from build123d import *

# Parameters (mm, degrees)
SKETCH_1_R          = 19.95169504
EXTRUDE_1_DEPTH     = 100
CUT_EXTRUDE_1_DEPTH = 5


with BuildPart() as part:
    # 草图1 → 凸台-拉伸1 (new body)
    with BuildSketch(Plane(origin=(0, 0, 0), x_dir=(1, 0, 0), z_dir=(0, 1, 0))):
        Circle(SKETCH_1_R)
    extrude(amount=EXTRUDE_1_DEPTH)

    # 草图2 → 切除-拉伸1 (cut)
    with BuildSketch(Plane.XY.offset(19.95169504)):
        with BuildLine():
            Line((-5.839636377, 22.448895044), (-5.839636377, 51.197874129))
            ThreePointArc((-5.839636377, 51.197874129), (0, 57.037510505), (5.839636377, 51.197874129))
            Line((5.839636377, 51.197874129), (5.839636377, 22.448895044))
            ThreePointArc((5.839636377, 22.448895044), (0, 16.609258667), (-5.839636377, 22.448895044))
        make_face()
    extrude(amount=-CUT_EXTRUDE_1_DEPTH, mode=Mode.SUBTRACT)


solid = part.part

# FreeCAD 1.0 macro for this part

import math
import FreeCAD as App
import Part
import Sketcher
Q = App.Units.Quantity

doc = App.newDocument("Part")
body = doc.addObject("PartDesign::Body", "Body")

# Sketch on XZ plane
sketch1 = body.newObject("Sketcher::SketchObject", "Sketch")
sketch1.AttachmentSupport = (doc.getObject("XZ_Plane"), [""])
sketch1.MapMode = "FlatFace"
sketch1.addGeometry(Part.Circle(App.Vector(0, 0, 0), App.Vector(0, 0, 1), 20), False)
sketch1.addConstraint([
    Sketcher.Constraint("Coincident", 0, 3, -1, 1),
    Sketcher.Constraint("Diameter", 0, Q("39.90339 mm")),
])
pad1 = body.newObject("PartDesign::Pad", "Pad")
pad1.Profile = sketch1
pad1.Length = 100
pad1.Reversed = True

# Sketch on XY plane
sketch2 = body.newObject("Sketcher::SketchObject", "Sketch001")
sketch2.AttachmentSupport = (doc.getObject("XY_Plane"), [""])
sketch2.MapMode = "FlatFace"
sketch2.AttachmentOffset = App.Placement(App.Vector(0, 0, 19.951695), App.Rotation())
sketch2.addGeometry([
    Part.LineSegment(App.Vector(-6, 51, 0), App.Vector(-6, 22, 0)),
    Part.ArcOfCircle(Part.Circle(App.Vector(0, 22, 0), App.Vector(0, 0, 1), 6), math.radians(180), math.radians(360)),
    Part.LineSegment(App.Vector(6, 22, 0), App.Vector(6, 51, 0)),
    Part.ArcOfCircle(Part.Circle(App.Vector(0, 51, 0), App.Vector(0, 0, 1), 6), math.radians(0), math.radians(180)),
], False)
sketch2.addConstraint([
    Sketcher.Constraint("Tangent", 0, 2, 1, 1),
    Sketcher.Constraint("Tangent", 1, 2, 2, 1),
    Sketcher.Constraint("Tangent", 2, 2, 3, 1),
    Sketcher.Constraint("Tangent", 3, 2, 0, 1),
    Sketcher.Constraint("Vertical", 0),
    Sketcher.Constraint("Vertical", 2),
    Sketcher.Constraint("PointOnObject", 1, 3, -2),
    Sketcher.Constraint("Radius", 1, Q("5.839636 mm")),
    Sketcher.Constraint("DistanceY", 0, 2, 0, 1, Q("28.748979 mm")),
    Sketcher.Constraint("DistanceY", -1, 1, 1, 3, Q("22.448895 mm")),
])
pocket1 = body.newObject("PartDesign::Pocket", "Pocket")
pocket1.Profile = sketch2
pocket1.Length = 5

doc.recompute()
